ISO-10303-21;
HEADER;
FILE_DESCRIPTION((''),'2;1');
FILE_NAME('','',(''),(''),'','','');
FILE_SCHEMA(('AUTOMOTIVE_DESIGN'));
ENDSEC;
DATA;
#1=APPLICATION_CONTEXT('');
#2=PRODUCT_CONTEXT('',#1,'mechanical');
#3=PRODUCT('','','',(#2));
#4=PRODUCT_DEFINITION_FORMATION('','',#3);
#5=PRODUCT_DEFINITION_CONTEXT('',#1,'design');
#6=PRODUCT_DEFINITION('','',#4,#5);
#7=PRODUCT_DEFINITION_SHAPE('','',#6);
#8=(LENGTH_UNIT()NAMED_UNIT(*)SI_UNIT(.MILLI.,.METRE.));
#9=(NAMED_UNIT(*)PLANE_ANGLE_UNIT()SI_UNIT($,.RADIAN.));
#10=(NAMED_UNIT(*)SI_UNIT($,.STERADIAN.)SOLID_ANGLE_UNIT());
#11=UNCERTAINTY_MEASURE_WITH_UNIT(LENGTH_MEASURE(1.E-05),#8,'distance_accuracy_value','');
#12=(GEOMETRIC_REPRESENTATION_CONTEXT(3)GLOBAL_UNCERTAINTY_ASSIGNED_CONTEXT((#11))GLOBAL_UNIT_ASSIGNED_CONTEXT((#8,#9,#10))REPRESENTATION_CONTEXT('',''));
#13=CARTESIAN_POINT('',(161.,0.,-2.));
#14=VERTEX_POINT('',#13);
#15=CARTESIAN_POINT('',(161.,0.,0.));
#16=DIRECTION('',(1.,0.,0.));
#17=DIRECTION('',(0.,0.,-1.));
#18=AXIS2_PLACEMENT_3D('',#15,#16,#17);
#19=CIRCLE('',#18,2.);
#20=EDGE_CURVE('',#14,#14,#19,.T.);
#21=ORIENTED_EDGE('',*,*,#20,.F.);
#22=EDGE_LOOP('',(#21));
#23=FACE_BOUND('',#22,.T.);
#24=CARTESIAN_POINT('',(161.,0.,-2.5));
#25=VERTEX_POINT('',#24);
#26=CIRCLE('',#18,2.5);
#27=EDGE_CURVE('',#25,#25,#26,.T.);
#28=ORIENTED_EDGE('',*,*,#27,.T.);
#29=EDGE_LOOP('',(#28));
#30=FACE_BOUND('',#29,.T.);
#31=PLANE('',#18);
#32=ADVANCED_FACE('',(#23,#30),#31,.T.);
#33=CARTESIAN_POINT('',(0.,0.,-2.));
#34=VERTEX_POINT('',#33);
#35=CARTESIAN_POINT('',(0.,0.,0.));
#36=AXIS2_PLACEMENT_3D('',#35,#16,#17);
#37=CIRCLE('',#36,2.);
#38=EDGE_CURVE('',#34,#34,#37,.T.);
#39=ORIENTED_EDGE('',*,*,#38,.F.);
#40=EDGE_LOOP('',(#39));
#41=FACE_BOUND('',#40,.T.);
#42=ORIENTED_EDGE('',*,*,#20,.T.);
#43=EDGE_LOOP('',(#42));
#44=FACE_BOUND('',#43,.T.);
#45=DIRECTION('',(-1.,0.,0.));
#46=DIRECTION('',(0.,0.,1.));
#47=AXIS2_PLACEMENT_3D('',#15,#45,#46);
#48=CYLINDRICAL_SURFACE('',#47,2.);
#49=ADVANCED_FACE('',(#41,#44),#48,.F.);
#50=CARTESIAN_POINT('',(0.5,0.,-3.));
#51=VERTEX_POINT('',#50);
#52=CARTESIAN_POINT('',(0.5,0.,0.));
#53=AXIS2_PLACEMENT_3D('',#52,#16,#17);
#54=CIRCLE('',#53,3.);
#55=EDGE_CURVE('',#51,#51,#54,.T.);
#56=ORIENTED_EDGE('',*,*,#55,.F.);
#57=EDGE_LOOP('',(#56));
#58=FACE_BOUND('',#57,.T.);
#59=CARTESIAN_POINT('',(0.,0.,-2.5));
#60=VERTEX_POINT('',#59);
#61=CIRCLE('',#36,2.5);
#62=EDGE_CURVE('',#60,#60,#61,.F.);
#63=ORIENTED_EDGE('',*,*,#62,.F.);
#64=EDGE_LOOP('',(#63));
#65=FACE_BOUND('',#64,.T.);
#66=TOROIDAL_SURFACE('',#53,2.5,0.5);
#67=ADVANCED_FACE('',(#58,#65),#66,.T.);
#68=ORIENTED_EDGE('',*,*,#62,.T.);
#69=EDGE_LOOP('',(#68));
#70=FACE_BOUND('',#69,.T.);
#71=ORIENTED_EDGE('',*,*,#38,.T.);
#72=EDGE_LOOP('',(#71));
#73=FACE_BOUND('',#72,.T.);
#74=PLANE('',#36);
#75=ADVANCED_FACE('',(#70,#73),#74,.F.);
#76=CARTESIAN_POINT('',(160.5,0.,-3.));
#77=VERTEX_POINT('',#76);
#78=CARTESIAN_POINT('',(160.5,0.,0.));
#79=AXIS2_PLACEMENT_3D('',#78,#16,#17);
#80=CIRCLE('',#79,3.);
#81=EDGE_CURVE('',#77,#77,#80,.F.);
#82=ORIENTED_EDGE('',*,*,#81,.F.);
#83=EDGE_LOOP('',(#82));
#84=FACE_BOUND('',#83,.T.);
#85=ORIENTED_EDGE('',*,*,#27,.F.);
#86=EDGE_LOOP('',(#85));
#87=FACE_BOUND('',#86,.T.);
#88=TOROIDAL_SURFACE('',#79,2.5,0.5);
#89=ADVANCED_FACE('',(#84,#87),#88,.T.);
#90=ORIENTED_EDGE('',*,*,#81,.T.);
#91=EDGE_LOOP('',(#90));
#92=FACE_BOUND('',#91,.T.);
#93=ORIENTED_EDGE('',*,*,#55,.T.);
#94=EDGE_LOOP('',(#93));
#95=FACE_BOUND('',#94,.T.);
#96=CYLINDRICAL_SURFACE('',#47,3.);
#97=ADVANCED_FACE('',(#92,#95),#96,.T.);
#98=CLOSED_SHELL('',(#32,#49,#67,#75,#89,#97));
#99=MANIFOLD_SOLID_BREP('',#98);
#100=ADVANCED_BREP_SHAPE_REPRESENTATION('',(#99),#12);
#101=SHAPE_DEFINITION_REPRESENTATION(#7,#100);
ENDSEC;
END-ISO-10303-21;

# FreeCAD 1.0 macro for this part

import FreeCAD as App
import Part
import Sketcher

V = App.Vector


def edges_at(feature, points):
    """Names of the edges that pass closest to the given points."""
    edges = feature.Shape.Edges
    near = lambda p: min(range(len(edges)), key=lambda i: edges[i].distToShape(Part.Vertex(*p))[0])
    return sorted({f"Edge{near(p) + 1}" for p in points})

doc = App.newDocument("Part")
body = doc.addObject("PartDesign::Body", "Body")

# Sketch on YZ plane
sketch1 = body.newObject("Sketcher::SketchObject", "Sketch")
sketch1.AttachmentSupport = (doc.getObject("YZ_Plane"), [""])
sketch1.MapMode = "FlatFace"
sketch1.addGeometry(Part.Circle(V(0, 0, 0), V(0, 0, 1), 3), False)
sketch1.addGeometry(Part.Circle(V(0, 0, 0), V(0, 0, 1), 2), False)
sketch1.addConstraint(Sketcher.Constraint("Coincident", 0, 3, -1, 1))
sketch1.addConstraint(Sketcher.Constraint("Coincident", 1, 3, -1, 1))
sketch1.addConstraint(Sketcher.Constraint("Diameter", 0, 6.0))
sketch1.addConstraint(Sketcher.Constraint("Diameter", 1, 4.0))
pad1 = body.newObject("PartDesign::Pad", "Pad")
pad1.Profile = sketch1
pad1.Length = 161
doc.recompute()

fillet = body.newObject("PartDesign::Fillet", "Fillet")
fillet.Base = (pad1, edges_at(pad1, [(0, 0, 3), (161, 0, 3)]))
fillet.Radius = 0.5

doc.recompute()
